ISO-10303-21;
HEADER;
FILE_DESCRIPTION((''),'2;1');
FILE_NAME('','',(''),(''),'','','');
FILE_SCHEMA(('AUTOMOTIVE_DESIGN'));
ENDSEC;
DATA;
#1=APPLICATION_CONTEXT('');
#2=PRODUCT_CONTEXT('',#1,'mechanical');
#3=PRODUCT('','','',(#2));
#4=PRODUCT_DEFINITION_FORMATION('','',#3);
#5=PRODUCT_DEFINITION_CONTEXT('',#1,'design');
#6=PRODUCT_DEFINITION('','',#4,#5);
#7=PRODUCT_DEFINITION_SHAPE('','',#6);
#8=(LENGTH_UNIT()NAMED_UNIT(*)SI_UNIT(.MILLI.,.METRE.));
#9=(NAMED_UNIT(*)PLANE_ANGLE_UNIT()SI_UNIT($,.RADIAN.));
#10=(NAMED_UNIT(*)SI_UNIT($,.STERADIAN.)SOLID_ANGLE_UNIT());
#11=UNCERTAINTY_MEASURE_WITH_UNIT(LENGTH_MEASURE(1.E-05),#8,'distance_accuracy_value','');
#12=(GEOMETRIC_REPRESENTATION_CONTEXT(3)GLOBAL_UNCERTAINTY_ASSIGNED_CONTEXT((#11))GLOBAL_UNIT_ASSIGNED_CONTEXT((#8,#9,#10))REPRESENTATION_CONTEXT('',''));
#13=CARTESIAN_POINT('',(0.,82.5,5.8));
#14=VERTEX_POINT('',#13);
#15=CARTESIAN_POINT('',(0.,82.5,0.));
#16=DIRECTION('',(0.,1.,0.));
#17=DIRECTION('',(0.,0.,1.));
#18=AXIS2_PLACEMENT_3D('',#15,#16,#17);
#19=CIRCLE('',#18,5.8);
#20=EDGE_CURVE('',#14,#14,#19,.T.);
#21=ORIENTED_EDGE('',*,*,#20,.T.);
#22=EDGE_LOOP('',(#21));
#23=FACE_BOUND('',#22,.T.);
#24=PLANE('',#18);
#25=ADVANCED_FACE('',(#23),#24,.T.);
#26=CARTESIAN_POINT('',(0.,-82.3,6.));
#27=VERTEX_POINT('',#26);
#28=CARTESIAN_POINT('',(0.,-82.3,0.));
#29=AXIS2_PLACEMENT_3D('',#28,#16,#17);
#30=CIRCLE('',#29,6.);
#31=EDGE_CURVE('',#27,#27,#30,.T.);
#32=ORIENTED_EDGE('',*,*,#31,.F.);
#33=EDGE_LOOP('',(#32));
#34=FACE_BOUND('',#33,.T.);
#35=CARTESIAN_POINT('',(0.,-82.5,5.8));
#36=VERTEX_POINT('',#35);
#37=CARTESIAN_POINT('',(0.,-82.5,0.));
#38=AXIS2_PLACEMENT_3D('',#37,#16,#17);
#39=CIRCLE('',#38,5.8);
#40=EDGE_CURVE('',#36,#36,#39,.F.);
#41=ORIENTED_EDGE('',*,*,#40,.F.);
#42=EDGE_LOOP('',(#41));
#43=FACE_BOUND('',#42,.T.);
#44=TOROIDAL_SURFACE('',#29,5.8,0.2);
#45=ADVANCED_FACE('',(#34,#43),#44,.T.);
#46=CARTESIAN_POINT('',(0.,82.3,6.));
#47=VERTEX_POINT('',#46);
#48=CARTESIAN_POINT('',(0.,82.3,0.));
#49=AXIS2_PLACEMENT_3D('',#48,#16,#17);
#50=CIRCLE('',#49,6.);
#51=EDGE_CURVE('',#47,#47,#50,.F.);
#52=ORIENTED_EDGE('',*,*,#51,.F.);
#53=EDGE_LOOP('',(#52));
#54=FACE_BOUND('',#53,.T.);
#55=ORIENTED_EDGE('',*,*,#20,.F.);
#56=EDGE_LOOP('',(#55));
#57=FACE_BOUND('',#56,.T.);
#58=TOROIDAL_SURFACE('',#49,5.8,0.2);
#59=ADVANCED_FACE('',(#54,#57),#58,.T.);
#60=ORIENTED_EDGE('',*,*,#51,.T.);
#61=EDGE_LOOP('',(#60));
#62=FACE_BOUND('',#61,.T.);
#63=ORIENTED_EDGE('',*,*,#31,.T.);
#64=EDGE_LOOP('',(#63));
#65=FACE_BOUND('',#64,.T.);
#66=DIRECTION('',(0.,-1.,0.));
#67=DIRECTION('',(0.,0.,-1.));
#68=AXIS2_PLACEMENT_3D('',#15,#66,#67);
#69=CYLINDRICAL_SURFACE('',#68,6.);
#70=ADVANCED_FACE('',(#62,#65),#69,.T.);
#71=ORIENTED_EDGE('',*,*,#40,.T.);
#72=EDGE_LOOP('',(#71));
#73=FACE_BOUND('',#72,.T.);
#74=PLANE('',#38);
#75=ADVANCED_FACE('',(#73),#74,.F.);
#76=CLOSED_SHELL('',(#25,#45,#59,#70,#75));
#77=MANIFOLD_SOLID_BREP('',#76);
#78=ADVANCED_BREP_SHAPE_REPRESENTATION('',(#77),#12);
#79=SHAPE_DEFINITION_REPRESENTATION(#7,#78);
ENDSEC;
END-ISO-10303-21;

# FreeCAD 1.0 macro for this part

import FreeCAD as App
import Part
import Sketcher
Q = App.Units.Quantity


def edges_at(feature, points):
    """Names of the edges that pass closest to the given points."""
    edges = feature.Shape.Edges
    near = lambda p: min(range(len(edges)), key=lambda i: edges[i].distToShape(Part.Vertex(*p))[0])
    return sorted({f"Edge{near(p) + 1}" for p in points})

doc = App.newDocument("Part")
body = doc.addObject("PartDesign::Body", "Body")

# Sketch on XZ plane
sketch1 = doc.addObject("Sketcher::SketchObject", "Sketch")
body.addObject(sketch1)
sketch1.AttachmentSupport = (doc.XZ_Plane, [""])
sketch1.MapMode = "FlatFace"
sketch1.addGeometry(Part.Circle(App.Vector(0, 0, 0), App.Vector(0, 0, 1), 6), False)
sketch1.addConstraint([
    Sketcher.Constraint("Coincident", 0, 3, -1, 1),
    Sketcher.Constraint("Diameter", 0, Q("12 mm")),
])
pad1 = doc.addObject("PartDesign::Pad", "Pad")
body.addObject(pad1)
pad1.Profile = sketch1
pad1.Length = 165
pad1.Midplane = True
doc.recompute()

fillet = doc.addObject("PartDesign::Fillet", "Fillet")
body.addObject(fillet)
fillet.Base = (pad1, edges_at(pad1, [(0, -82.5, -6), (0, 82.5, -6)]))
fillet.Radius = 0.2

doc.recompute()
